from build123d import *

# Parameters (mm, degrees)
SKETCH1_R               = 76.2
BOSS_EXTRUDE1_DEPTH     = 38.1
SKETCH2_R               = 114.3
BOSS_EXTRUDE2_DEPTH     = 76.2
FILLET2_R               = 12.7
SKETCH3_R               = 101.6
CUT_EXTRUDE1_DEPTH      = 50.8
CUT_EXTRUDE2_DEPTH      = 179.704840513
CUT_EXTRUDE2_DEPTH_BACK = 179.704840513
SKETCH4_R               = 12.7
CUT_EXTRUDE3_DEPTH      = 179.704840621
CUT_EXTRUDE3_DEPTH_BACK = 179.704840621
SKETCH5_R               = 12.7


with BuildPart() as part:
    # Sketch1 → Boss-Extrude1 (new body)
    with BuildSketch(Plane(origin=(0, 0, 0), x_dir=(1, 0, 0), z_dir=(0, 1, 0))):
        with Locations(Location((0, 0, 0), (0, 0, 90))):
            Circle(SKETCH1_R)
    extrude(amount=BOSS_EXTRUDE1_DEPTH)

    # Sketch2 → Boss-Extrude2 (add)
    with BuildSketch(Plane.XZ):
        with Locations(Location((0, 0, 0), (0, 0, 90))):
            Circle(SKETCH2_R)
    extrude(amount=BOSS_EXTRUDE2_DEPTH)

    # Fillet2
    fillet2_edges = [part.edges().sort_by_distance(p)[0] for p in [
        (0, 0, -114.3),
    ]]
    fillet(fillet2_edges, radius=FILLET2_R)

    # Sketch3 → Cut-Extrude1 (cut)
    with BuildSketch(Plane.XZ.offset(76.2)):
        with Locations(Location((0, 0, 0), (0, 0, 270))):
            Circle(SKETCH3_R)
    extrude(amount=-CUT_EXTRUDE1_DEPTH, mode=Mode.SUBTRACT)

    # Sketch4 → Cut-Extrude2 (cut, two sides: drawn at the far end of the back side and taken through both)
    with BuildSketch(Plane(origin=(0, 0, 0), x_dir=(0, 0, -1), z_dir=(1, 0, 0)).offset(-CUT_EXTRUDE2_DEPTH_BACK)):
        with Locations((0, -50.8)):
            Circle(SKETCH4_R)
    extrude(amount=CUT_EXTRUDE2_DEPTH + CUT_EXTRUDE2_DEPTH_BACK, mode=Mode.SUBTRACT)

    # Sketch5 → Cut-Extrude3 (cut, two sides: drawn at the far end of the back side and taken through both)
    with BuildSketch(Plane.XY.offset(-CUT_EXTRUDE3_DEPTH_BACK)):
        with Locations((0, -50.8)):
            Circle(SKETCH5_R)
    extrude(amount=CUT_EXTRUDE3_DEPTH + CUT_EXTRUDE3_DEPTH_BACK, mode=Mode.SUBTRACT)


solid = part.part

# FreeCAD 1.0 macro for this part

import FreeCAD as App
import Part
import Sketcher
Q = App.Units.Quantity


def edges_at(feature, points):
    """Names of the edges that pass closest to the given points."""
    edges = feature.Shape.Edges
    near = lambda p: min(range(len(edges)), key=lambda i: edges[i].distToShape(Part.Vertex(*p))[0])
    return sorted({f"Edge{near(p) + 1}" for p in points})

doc = App.newDocument("Part")
body = doc.addObject("PartDesign::Body", "Body")

sketch1 = doc.addObject("Sketcher::SketchObject", "Sketch")
body.addObject(sketch1)
sketch1.AttachmentSupport = (doc.XZ_Plane, [""])
sketch1.MapMode = "FlatFace"
sketch1.addGeometry(Part.Circle(App.Vector(0, 0, 0), App.Vector(0, 0, 1), 76), False)
sketch1.addConstraint([
    Sketcher.Constraint("Coincident", 0, 3, -1, 1),
    Sketcher.Constraint("Diameter", 0, Q("6 in")),
])
pad1 = doc.addObject("PartDesign::Pad", "Pad")
body.addObject(pad1)
pad1.Profile = sketch1
pad1.Length = Q("1.5 in")
pad1.Reversed = True

sketch2 = doc.addObject("Sketcher::SketchObject", "Sketch001")
body.addObject(sketch2)
sketch2.AttachmentSupport = (doc.XZ_Plane, [""])
sketch2.MapMode = "FlatFace"
sketch2.addGeometry(Part.Circle(App.Vector(0, 0, 0), App.Vector(0, 0, 1), 114), False)
sketch2.addConstraint([
    Sketcher.Constraint("Coincident", 0, 3, -1, 1),
    Sketcher.Constraint("Diameter", 0, Q("9 in")),
])
pad2 = doc.addObject("PartDesign::Pad", "Pad001")
body.addObject(pad2)
pad2.Profile = sketch2
pad2.Length = Q("3 in")
doc.recompute()

fillet = doc.addObject("PartDesign::Fillet", "Fillet")
body.addObject(fillet)
fillet.Base = (pad2, edges_at(pad2, [(0, 0, -114.3)]))
fillet.Radius = Q("0.5 in")

sketch3 = doc.addObject("Sketcher::SketchObject", "Sketch002")
body.addObject(sketch3)
sketch3.AttachmentSupport = (doc.XZ_Plane, [""])
sketch3.MapMode = "FlatFace"
sketch3.AttachmentOffset = App.Placement(App.Vector(0, 0, 3 * 25.4), App.Rotation())
sketch3.addGeometry(Part.Circle(App.Vector(0, 0, 0), App.Vector(0, 0, 1), 102), False)
sketch3.addConstraint([
    Sketcher.Constraint("Coincident", 0, 3, -1, 1),
    Sketcher.Constraint("Diameter", 0, Q("8 in")),
])
pocket1 = doc.addObject("PartDesign::Pocket", "Pocket")
body.addObject(pocket1)
pocket1.Profile = sketch3
pocket1.Length = Q("2 in")

sketch4 = doc.addObject("Sketcher::SketchObject", "Sketch003")
body.addObject(sketch4)
sketch4.AttachmentSupport = (doc.YZ_Plane, [""])
sketch4.MapMode = "FlatFace"
sketch4.addGeometry(Part.Circle(App.Vector(-51, 0, 0), App.Vector(0, 0, 1), 13), False)
sketch4.addConstraint([
    Sketcher.Constraint("PointOnObject", 0, 3, -1),
    Sketcher.Constraint("Diameter", 0, Q("1 in")),
    Sketcher.Constraint("DistanceX", 0, 3, -1, 1, Q("2 in")),
])
pocket2 = doc.addObject("PartDesign::Pocket", "Pocket001")
body.addObject(pocket2)
pocket2.Profile = sketch4
pocket2.Type = "ThroughAll"
pocket2.Midplane = True

sketch5 = doc.addObject("Sketcher::SketchObject", "Sketch004")
body.addObject(sketch5)
sketch5.AttachmentSupport = (doc.XY_Plane, [""])
sketch5.MapMode = "FlatFace"
sketch5.addGeometry(Part.Circle(App.Vector(0, -51, 0), App.Vector(0, 0, 1), 13), False)
sketch5.addConstraint([
    Sketcher.Constraint("PointOnObject", 0, 3, -2),
    Sketcher.Constraint("Diameter", 0, Q("1 in")),
    Sketcher.Constraint("DistanceY", 0, 3, -1, 1, Q("2 in")),
])
pocket3 = doc.addObject("PartDesign::Pocket", "Pocket002")
body.addObject(pocket3)
pocket3.Profile = sketch5
pocket3.Type = "ThroughAll"
pocket3.Midplane = True

doc.recompute()
